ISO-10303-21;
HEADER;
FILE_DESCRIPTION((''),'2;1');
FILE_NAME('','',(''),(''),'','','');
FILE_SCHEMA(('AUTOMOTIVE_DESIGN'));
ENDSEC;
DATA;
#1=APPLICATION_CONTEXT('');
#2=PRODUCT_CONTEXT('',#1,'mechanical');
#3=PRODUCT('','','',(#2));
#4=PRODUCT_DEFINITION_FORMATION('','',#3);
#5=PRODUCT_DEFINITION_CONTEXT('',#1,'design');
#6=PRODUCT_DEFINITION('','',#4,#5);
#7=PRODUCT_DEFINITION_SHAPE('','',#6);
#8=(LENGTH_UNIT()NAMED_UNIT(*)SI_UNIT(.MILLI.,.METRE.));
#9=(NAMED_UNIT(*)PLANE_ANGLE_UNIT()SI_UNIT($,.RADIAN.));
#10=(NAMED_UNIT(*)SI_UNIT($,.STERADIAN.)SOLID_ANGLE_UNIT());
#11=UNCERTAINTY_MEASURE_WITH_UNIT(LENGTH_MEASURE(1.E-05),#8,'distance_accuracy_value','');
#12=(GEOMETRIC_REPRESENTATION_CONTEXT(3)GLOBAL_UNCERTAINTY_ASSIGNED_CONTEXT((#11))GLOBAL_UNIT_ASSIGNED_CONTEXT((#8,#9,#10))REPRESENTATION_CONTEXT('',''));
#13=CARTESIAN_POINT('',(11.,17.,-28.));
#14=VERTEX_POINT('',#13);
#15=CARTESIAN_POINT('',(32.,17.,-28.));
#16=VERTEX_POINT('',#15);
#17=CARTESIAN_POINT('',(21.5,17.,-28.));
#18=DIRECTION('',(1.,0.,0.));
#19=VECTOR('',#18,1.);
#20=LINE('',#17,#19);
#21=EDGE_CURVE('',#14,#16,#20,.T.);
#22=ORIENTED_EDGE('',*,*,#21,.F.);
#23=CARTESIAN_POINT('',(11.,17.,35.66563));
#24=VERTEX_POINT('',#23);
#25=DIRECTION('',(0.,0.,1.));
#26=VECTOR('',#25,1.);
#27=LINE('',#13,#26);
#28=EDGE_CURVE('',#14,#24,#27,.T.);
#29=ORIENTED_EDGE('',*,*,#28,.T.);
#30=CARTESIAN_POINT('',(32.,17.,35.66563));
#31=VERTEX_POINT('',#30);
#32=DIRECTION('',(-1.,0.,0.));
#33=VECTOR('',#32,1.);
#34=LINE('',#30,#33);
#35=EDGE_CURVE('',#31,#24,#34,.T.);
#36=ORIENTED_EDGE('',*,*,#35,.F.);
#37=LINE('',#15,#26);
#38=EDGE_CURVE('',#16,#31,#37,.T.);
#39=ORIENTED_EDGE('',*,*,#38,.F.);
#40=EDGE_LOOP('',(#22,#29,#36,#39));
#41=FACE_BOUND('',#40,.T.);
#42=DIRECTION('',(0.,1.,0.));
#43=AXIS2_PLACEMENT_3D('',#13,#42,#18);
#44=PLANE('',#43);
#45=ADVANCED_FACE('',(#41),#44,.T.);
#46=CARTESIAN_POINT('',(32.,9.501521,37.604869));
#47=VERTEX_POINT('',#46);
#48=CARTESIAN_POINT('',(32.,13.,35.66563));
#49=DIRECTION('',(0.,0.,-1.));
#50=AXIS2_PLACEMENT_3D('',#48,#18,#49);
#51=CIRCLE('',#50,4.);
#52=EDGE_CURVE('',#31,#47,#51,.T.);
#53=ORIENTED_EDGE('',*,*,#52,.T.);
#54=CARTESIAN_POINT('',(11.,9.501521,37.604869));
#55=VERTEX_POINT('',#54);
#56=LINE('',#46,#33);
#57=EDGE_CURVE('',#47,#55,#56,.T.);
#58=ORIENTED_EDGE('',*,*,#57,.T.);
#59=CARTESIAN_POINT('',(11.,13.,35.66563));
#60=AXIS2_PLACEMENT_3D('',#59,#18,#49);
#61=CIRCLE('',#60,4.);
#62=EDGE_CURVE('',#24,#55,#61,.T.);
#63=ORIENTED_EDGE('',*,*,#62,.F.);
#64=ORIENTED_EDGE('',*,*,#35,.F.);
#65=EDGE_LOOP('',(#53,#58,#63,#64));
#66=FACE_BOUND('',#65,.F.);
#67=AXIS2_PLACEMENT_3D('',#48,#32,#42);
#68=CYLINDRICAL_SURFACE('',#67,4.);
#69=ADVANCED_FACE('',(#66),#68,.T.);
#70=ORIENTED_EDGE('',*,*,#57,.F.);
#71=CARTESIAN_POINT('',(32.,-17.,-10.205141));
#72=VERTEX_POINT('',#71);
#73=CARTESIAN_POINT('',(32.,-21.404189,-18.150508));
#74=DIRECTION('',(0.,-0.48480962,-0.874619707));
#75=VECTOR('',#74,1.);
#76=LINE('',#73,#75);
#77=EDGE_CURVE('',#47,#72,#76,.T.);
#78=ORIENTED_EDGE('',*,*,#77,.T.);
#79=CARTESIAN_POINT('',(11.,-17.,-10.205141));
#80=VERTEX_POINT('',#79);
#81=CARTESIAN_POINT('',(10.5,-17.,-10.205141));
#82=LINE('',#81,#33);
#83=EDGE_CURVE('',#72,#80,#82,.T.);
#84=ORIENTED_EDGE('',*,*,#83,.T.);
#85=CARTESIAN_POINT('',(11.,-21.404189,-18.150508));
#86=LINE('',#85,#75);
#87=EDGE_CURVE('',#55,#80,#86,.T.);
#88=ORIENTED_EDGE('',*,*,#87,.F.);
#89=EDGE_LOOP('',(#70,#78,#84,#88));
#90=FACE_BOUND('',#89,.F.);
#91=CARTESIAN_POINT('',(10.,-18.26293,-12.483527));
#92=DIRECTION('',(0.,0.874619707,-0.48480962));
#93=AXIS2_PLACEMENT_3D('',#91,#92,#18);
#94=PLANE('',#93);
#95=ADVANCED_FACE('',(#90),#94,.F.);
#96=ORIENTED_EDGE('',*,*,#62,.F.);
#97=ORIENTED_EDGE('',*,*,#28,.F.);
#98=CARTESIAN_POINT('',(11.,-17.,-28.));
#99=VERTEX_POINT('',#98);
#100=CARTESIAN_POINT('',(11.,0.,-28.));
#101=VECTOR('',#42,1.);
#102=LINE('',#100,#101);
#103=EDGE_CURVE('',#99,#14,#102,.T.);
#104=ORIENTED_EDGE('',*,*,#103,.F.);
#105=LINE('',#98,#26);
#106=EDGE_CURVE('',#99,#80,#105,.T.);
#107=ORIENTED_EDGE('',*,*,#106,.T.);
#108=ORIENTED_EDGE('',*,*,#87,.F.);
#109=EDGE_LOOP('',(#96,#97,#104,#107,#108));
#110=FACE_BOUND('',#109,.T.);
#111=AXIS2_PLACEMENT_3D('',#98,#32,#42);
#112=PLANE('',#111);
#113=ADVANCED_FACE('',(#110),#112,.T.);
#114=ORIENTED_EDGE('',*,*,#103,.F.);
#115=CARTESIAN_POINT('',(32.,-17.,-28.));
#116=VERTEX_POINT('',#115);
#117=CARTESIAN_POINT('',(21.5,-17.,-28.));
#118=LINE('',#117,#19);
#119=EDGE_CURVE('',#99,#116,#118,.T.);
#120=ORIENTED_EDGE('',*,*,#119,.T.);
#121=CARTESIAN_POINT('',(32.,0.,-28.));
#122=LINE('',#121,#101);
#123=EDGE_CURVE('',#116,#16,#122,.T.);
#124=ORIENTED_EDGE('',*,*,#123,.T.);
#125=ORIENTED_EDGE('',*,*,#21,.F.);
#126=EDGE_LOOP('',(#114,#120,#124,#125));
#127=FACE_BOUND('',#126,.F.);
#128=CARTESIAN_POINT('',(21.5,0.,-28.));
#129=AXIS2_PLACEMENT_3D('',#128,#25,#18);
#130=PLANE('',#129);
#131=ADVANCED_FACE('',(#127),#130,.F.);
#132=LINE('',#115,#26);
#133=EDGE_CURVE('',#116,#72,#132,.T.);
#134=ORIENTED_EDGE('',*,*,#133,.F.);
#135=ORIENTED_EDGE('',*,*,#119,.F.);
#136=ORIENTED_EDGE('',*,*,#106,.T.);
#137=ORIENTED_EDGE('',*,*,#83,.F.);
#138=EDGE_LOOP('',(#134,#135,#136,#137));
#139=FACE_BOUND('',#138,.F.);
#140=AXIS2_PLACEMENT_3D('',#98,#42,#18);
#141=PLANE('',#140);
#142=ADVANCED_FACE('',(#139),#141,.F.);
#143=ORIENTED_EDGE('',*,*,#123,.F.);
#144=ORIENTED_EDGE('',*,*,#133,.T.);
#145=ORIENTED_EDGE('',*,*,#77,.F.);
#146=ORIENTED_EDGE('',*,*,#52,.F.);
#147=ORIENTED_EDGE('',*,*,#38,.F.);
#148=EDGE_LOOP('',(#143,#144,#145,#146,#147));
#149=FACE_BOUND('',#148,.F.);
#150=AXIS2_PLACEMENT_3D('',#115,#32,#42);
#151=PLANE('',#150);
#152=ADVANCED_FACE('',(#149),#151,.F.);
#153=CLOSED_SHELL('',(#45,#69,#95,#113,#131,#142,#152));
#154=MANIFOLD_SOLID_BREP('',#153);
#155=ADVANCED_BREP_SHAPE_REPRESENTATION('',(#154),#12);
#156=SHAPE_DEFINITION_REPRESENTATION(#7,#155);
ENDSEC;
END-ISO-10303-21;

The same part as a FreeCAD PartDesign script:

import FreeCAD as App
import Part
import Sketcher
from FreeCAD import Vector
Q = App.Units.Quantity


def edges_at(feature, points):
    """Names of the edges that pass closest to the given points."""
    edges = feature.Shape.Edges
    near = lambda p: min(range(len(edges)), key=lambda i: edges[i].distToShape(Part.Vertex(*p))[0])
    return sorted({f"Edge{near(p) + 1}" for p in points})


def add_polygon(sketch, points):
    """Adds a closed chain of lines whose ends are joined by coincident constraints."""
    first, n = sketch.GeometryCount, len(points)
    for a, b in zip(points, points[1:] + points[:1]):
        sketch.addGeometry(Part.LineSegment(App.Vector(*a, 0), App.Vector(*b, 0)), False)
    for i in range(n):
        sketch.addConstraint(Sketcher.Constraint("Coincident", first + i, 2, first + (i + 1) % n, 1))

doc = App.newDocument("Part")
params = doc.addObject("Spreadsheet::Sheet", "Params")
for row, (alias, value) in enumerate([
    ("sketch1_width", "23 mm"),
    ("sketch1_height", "34 mm"),
    ("pad1_length", "80 mm"),
    ("sketch2_width", "21 mm"),
    ("sketch2_height", "34 mm"),
    ("pad2_length", "80 mm"),
    ("fillet_radius", "4 mm"),
], start=1):
    params.set(f"A{row}", alias)
    params.set(f"B{row}", "=" + value)
    params.setAlias(f"B{row}", alias)

body = doc.addObject("PartDesign::Body", "Body")

# Sketch on XY plane
sketch1 = body.newObject("Sketcher::SketchObject", "Sketch")
sketch1.AttachmentSupport = (doc.getObject("XY_Plane"), [""])
sketch1.MapMode = "FlatFace"
add_polygon(sketch1, [(0, 34), (0, 0), (23, 0), (23, 34)])  # lines 0-3
sketch1.addConstraint([
    Sketcher.Constraint("Vertical", 0),
    Sketcher.Constraint("Horizontal", 1),
    Sketcher.Constraint("Vertical", 2),
    Sketcher.Constraint("Horizontal", 3),
    Sketcher.Constraint("Coincident", 0, 2, -1, 1),
    Sketcher.Constraint("DistanceX", 1, 1, 1, 2, Q("23 mm")),
    Sketcher.Constraint("DistanceY", 0, 2, 0, 1, Q("34 mm")),
])
sketch1.setExpression("Constraints[9]", "Params.sketch1_width")
sketch1.setExpression("Constraints[10]", "Params.sketch1_height")
pad1 = body.newObject("PartDesign::Pad", "Pad")
pad1.Profile = sketch1
pad1.setExpression("Length", "Params.pad1_length")
body2 = doc.addObject("PartDesign::Body", "Body001")
doc.recompute()

body.Placement = App.Placement(Vector(0, 0, 0), App.Rotation(Vector(1, 0, 0), 331))
boolean = body2.newObject("PartDesign::Boolean", "Boolean")
boolean.Type = "Fuse"
boolean.addObjects([body])
body3 = doc.addObject("PartDesign::Body", "Body002")
doc.recompute()

body2.Placement = App.Placement(Vector(10, -48, -6), App.Rotation(Vector(0, 0, 1), 0))
boolean2 = body3.newObject("PartDesign::Boolean", "Boolean001")
boolean2.Type = "Fuse"
boolean2.addObjects([body2])
body4 = doc.addObject("PartDesign::Body", "Body003")

# Sketch on XY plane
sketch2 = body4.newObject("Sketcher::SketchObject", "Sketch001")
sketch2.AttachmentSupport = (doc.getObject("XY_Plane003"), [""])
sketch2.MapMode = "FlatFace"
sketch2.AttachmentOffset = App.Placement(Vector(0, 0, -38), App.Rotation())
add_polygon(sketch2, [(11, 17), (11, -17), (32, -17), (32, 17)])  # lines 0-3
sketch2.addConstraint([
    Sketcher.Constraint("Vertical", 0),
    Sketcher.Constraint("Horizontal", 1),
    Sketcher.Constraint("Vertical", 2),
    Sketcher.Constraint("Horizontal", 3),
    Sketcher.Constraint("DistanceX", 1, 1, 1, 2, Q("21 mm")),
    Sketcher.Constraint("DistanceY", 0, 2, 0, 1, Q("34 mm")),
    Sketcher.Constraint("DistanceX", -1, 1, 0, 2, Q("11 mm")),
    Sketcher.Constraint("DistanceY", 0, 2, -1, 1, Q("17 mm")),
])
sketch2.setExpression("Constraints[8]", "Params.sketch2_width")
sketch2.setExpression("Constraints[9]", "Params.sketch2_height")
pad2 = body4.newObject("PartDesign::Pad", "Pad001")
pad2.Profile = sketch2
pad2.setExpression("Length", "Params.pad2_length")
doc.recompute()

boolean3 = body4.newObject("PartDesign::Boolean", "Boolean002")
boolean3.Type = "Cut"
boolean3.addObjects([body3])
doc.recompute()

fillet = body4.newObject("PartDesign::Fillet", "Fillet")
fillet.Base = (boolean3, edges_at(boolean3, [(21.5, 17, 41.132)]))
fillet.setExpression("Radius", "Params.fillet_radius")
body5 = doc.addObject("PartDesign::Body", "Body004")
doc.recompute()

body4.Placement = App.Placement(Vector(0, 0, 10), App.Rotation(Vector(0, 0, 1), 0))
boolean4 = body5.newObject("PartDesign::Boolean", "Boolean003")
boolean4.Type = "Fuse"
boolean4.addObjects([body4])

doc.recompute()
